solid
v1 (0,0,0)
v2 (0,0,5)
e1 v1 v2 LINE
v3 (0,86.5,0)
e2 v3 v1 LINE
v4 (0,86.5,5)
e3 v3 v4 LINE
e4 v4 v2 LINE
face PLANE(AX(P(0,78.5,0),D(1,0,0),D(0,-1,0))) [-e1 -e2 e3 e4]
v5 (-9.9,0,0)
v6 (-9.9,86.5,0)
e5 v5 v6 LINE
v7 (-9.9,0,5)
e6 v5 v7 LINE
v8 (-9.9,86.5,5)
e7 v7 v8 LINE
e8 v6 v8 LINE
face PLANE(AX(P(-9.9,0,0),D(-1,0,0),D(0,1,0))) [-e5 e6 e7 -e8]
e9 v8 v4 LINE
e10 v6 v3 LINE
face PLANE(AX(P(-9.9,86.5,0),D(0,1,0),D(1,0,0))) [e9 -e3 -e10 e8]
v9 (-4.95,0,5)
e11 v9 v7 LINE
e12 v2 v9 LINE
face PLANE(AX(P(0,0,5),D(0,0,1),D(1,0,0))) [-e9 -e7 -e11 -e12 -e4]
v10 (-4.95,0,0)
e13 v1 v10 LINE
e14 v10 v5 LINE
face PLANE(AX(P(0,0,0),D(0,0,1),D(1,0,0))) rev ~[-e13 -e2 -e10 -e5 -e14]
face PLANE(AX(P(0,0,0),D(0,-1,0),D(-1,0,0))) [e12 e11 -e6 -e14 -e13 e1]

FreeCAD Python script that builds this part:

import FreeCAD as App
import Part
import Sketcher
from FreeCAD import Vector


def add_polygon(sketch, points):
    """Adds a closed chain of lines whose ends are joined by coincident constraints."""
    first, n = sketch.GeometryCount, len(points)
    for a, b in zip(points, points[1:] + points[:1]):
        sketch.addGeometry(Part.LineSegment(App.Vector(*a, 0), App.Vector(*b, 0)), False)
    for i in range(n):
        sketch.addConstraint(Sketcher.Constraint("Coincident", first + i, 2, first + (i + 1) % n, 1))

doc = App.newDocument("Part")
params = doc.addObject("Spreadsheet::Sheet", "Params")
for row, (alias, value) in enumerate([
    ("sketch1_width", "9.9 mm"),
    ("sketch1_height", "86.5 mm"),
    ("pad1_length", "5 mm"),
], start=1):
    params.set(f"A{row}", alias)
    params.set(f"B{row}", "=" + value)
    params.setAlias(f"B{row}", alias)

body = doc.addObject("PartDesign::Body", "Body")

# Sketch on XY plane
sketch1 = body.newObject("Sketcher::SketchObject", "Sketch")
sketch1.AttachmentSupport = (doc.getObject("XY_Plane"), [""])
sketch1.MapMode = "FlatFace"
add_polygon(sketch1, [(-5, 0), (0, 0), (0, 86.5), (-9.9, 86.5), (-9.9, 0)])  # lines 0-4
sketch1.addConstraint(Sketcher.Constraint("Horizontal", 0))
sketch1.addConstraint(Sketcher.Constraint("Vertical", 1))
sketch1.addConstraint(Sketcher.Constraint("Horizontal", 2))
sketch1.addConstraint(Sketcher.Constraint("Vertical", 3))
sketch1.addConstraint(Sketcher.Constraint("Horizontal", 4))
sketch1.addConstraint(Sketcher.Constraint("Coincident", 0, 2, -1, 1))
sketch1.addConstraint(Sketcher.Constraint("Equal", 0, 4))
sketch1.addConstraint(Sketcher.Constraint("DistanceX", 2, 2, 2, 1, 9.9))
sketch1.addConstraint(Sketcher.Constraint("DistanceY", 1, 1, 1, 2, 86.5))
sketch1.setExpression("Constraints[12]", "Params.sketch1_width")
sketch1.setExpression("Constraints[13]", "Params.sketch1_height")
pad1 = body.newObject("PartDesign::Pad", "Pad")
pad1.Profile = sketch1
pad1.setExpression("Length", "Params.pad1_length")

doc.recompute()
